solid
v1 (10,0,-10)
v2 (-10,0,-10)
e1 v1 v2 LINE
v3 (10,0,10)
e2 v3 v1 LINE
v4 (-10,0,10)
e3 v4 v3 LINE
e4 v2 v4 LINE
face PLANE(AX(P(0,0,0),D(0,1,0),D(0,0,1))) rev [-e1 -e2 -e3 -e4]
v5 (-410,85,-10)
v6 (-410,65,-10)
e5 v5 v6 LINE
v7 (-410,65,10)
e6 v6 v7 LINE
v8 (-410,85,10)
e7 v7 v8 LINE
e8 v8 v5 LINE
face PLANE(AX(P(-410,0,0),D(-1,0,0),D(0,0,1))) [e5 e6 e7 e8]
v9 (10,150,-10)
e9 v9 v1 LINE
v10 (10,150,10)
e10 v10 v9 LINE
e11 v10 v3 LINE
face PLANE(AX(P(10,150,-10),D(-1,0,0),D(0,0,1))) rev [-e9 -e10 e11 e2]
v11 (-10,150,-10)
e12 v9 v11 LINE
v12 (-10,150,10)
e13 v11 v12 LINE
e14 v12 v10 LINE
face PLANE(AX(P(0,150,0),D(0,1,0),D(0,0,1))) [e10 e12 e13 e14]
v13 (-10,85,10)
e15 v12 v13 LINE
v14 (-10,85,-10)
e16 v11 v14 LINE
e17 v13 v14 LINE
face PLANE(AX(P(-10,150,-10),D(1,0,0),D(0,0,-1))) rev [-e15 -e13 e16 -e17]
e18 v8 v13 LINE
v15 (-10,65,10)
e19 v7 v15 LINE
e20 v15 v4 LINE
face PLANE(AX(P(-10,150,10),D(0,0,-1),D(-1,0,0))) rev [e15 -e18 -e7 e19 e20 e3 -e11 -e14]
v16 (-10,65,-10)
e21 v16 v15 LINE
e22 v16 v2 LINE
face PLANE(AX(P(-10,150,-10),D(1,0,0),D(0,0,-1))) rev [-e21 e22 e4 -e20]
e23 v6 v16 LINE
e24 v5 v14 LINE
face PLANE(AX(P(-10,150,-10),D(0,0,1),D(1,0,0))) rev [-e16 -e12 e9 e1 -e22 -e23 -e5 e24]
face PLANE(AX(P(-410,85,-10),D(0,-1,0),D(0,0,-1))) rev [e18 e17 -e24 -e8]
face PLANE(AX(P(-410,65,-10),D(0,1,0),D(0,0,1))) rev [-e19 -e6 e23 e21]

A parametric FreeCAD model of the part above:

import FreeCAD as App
import Part
import Sketcher
from FreeCAD import Vector
Q = App.Units.Quantity

doc = App.newDocument("Part")
body = doc.addObject("PartDesign::Body", "Body")

sketch1 = body.newObject("Sketcher::SketchObject", "Sketch")
sketch1.AttachmentSupport = (doc.getObject("XZ_Plane"), [""])
sketch1.MapMode = "FlatFace"
sketch1.addGeometry(Part.LineSegment(Vector(-10, -10, 0), Vector(-10, 10, 0)), False)
sketch1.addGeometry(Part.LineSegment(Vector(-10, 10, 0), Vector(10, 10, 0)), False)
sketch1.addGeometry(Part.LineSegment(Vector(10, 10, 0), Vector(10, -10, 0)), False)
sketch1.addGeometry(Part.LineSegment(Vector(10, -10, 0), Vector(-10, -10, 0)), False)
sketch1.addConstraint(Sketcher.Constraint("Coincident", 0, 2, 1, 1))
sketch1.addConstraint(Sketcher.Constraint("Coincident", 1, 2, 2, 1))
sketch1.addConstraint(Sketcher.Constraint("Coincident", 2, 2, 3, 1))
sketch1.addConstraint(Sketcher.Constraint("Coincident", 3, 2, 0, 1))
sketch1.addConstraint(Sketcher.Constraint("Vertical", 0))
sketch1.addConstraint(Sketcher.Constraint("Horizontal", 1))
sketch1.addConstraint(Sketcher.Constraint("Vertical", 2))
sketch1.addConstraint(Sketcher.Constraint("Horizontal", 3))
sketch1.addConstraint(Sketcher.Constraint("Symmetric", 0, 2, 2, 2, -1, 1))
sketch1.addConstraint(Sketcher.Constraint("Equal", 3, 0))
sketch1.addConstraint(Sketcher.Constraint("DistanceX", 1, 1, 1, 2, Q("20 mm")))
pad1 = body.newObject("PartDesign::Pad", "Pad")
pad1.Profile = sketch1
pad1.Length = 150
pad1.Reversed = True

sketch2 = body.newObject("Sketcher::SketchObject", "Sketch001")
sketch2.AttachmentSupport = (doc.getObject("YZ_Plane"), [""])
sketch2.MapMode = "FlatFace"
sketch2.AttachmentOffset = App.Placement(Vector(0, 0, -10), App.Rotation())
sketch2.addGeometry(Part.LineSegment(Vector(85, -10, 0), Vector(65, -10, 0)), False)
sketch2.addGeometry(Part.LineSegment(Vector(65, -10, 0), Vector(65, 10, 0)), False)
sketch2.addGeometry(Part.LineSegment(Vector(65, 10, 0), Vector(85, 10, 0)), False)
sketch2.addGeometry(Part.LineSegment(Vector(85, 10, 0), Vector(85, -10, 0)), False)
sketch2.addConstraint(Sketcher.Constraint("Coincident", 0, 2, 1, 1))
sketch2.addConstraint(Sketcher.Constraint("Coincident", 1, 2, 2, 1))
sketch2.addConstraint(Sketcher.Constraint("Coincident", 2, 2, 3, 1))
sketch2.addConstraint(Sketcher.Constraint("Coincident", 3, 2, 0, 1))
sketch2.addConstraint(Sketcher.Constraint("Horizontal", 0))
sketch2.addConstraint(Sketcher.Constraint("Vertical", 1))
sketch2.addConstraint(Sketcher.Constraint("Horizontal", 2))
sketch2.addConstraint(Sketcher.Constraint("Vertical", 3))
sketch2.addConstraint(Sketcher.Constraint("Equal", 2, 1))
sketch2.addConstraint(Sketcher.Constraint("DistanceX", 0, 2, 0, 1, Q("20 mm")))
sketch2.addConstraint(Sketcher.Constraint("DistanceX", -1, 1, 0, 2, Q("65 mm")))
sketch2.addConstraint(Sketcher.Constraint("DistanceY", 0, 2, -1, 1, Q("10 mm")))
pad2 = body.newObject("PartDesign::Pad", "Pad001")
pad2.Profile = sketch2
pad2.Length = 400
pad2.Reversed = True

doc.recompute()
